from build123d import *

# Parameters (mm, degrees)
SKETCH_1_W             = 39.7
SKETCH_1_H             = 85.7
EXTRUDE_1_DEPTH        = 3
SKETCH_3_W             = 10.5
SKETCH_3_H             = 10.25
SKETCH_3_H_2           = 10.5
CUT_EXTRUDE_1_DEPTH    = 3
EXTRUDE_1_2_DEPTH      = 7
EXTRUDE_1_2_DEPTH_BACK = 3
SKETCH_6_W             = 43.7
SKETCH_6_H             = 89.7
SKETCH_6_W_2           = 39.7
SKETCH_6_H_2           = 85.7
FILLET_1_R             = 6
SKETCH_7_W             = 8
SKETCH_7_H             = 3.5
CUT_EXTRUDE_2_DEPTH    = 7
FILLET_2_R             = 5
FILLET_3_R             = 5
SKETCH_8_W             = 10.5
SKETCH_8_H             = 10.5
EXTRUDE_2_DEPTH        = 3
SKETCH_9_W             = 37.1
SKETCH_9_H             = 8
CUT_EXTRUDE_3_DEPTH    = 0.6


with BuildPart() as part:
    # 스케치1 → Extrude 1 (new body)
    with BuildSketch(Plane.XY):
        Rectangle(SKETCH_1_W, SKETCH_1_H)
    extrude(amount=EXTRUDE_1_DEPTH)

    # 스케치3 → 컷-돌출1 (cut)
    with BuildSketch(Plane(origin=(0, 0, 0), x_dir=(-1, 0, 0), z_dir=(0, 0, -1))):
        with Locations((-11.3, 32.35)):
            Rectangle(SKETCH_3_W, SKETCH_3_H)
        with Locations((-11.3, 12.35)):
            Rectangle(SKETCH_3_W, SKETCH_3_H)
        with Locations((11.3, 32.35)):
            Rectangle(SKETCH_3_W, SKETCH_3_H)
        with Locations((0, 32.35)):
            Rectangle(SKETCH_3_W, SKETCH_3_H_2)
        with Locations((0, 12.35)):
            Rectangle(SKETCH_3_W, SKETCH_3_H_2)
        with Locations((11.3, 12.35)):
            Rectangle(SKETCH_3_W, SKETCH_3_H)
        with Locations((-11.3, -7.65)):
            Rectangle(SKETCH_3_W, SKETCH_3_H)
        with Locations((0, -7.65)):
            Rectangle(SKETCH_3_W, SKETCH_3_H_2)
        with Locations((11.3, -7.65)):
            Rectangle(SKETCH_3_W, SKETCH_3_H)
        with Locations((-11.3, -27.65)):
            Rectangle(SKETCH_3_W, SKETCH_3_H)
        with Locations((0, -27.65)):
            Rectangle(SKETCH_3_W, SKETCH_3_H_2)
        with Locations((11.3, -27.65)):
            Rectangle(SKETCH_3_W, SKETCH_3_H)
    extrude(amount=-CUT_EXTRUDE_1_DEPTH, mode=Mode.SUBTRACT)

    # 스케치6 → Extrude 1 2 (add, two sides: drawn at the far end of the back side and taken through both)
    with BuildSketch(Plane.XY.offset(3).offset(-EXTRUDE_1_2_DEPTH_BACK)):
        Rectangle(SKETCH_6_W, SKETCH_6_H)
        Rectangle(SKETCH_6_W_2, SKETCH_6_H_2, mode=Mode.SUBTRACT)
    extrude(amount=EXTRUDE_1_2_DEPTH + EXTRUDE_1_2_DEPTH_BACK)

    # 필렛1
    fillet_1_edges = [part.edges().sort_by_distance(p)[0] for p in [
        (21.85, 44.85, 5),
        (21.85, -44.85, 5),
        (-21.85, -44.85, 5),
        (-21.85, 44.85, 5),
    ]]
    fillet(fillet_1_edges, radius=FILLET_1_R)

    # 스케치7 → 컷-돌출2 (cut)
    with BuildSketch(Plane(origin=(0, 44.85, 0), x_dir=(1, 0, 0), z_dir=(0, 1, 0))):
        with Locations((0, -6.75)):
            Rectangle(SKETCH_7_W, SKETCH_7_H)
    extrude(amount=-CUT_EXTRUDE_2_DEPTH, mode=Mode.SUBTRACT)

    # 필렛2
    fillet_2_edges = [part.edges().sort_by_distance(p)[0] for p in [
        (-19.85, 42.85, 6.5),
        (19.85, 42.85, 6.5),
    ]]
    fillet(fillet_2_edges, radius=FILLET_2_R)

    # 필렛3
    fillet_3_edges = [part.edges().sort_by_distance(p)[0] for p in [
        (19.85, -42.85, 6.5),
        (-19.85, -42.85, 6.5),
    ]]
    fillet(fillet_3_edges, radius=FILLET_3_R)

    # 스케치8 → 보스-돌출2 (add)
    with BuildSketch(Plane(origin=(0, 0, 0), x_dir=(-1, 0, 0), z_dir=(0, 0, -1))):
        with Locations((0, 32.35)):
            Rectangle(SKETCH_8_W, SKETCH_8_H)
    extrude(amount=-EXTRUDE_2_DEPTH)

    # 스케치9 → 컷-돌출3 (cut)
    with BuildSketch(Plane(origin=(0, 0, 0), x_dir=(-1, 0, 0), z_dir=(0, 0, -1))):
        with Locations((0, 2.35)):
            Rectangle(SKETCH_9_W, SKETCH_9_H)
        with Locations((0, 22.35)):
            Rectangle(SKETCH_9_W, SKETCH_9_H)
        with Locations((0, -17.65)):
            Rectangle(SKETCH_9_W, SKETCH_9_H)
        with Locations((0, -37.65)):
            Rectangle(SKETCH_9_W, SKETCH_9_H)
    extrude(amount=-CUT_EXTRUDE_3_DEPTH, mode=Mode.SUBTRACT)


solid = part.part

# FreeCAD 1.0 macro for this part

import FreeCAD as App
import Part
import Sketcher
Q = App.Units.Quantity


def edges_at(feature, points):
    """Names of the edges that pass closest to the given points."""
    edges = feature.Shape.Edges
    near = lambda p: min(range(len(edges)), key=lambda i: edges[i].distToShape(Part.Vertex(*p))[0])
    return sorted({f"Edge{near(p) + 1}" for p in points})


def add_polygon(sketch, points):
    """Adds a closed chain of lines whose ends are joined by coincident constraints."""
    first, n = sketch.GeometryCount, len(points)
    for a, b in zip(points, points[1:] + points[:1]):
        sketch.addGeometry(Part.LineSegment(App.Vector(*a, 0), App.Vector(*b, 0)), False)
    for i in range(n):
        sketch.addConstraint(Sketcher.Constraint("Coincident", first + i, 2, first + (i + 1) % n, 1))

doc = App.newDocument("Part")
body = doc.addObject("PartDesign::Body", "Body")

sketch1 = doc.addObject("Sketcher::SketchObject", "Sketch")
body.addObject(sketch1)
sketch1.AttachmentSupport = (doc.XY_Plane, [""])
sketch1.MapMode = "FlatFace"
add_polygon(sketch1, [(-20, 43), (-20, -43), (20, -43), (20, 43)])
sketch1.addConstraint(Sketcher.Constraint("Vertical", 0))
sketch1.addConstraint(Sketcher.Constraint("Horizontal", 1))
sketch1.addConstraint(Sketcher.Constraint("Vertical", 2))
sketch1.addConstraint(Sketcher.Constraint("Horizontal", 3))
sketch1.addConstraint(Sketcher.Constraint("Symmetric", 0, 2, 2, 2, -1, 1))
sketch1.addConstraint(Sketcher.Constraint("DistanceX", 1, 1, 1, 2, Q("39.7 mm")))
sketch1.addConstraint(Sketcher.Constraint("DistanceY", 0, 2, 0, 1, Q("85.7 mm")))
pad1 = doc.addObject("PartDesign::Pad", "Pad")
body.addObject(pad1)
pad1.Profile = sketch1
pad1.Length = 3

sketch2 = doc.addObject("Sketcher::SketchObject", "Sketch001")
body.addObject(sketch2)
sketch2.AttachmentSupport = (doc.XY_Plane, [""])
sketch2.MapMode = "FlatFace"
add_polygon(sketch2, [(17, 37), (17, 27), (6, 27), (6, 37)])
add_polygon(sketch2, [(17, 17), (17, 7), (6, 7), (6, 17)])
add_polygon(sketch2, [(-6, 37), (-6, 27), (-17, 27), (-17, 37)])
add_polygon(sketch2, [(5, 38), (5, 27), (-5, 27), (-5, 38)])
add_polygon(sketch2, [(5, 18), (5, 7), (-5, 7), (-5, 18)])
add_polygon(sketch2, [(-6, 17), (-6, 7), (-17, 7), (-17, 17)])
add_polygon(sketch2, [(17, -3), (17, -13), (6, -13), (6, -3)])
add_polygon(sketch2, [(5, -2), (5, -13), (-5, -13), (-5, -2)])
add_polygon(sketch2, [(-6, -3), (-6, -13), (-17, -13), (-17, -3)])
add_polygon(sketch2, [(17, -23), (17, -33), (6, -33), (6, -23)])
add_polygon(sketch2, [(5, -22), (5, -33), (-5, -33), (-5, -22)])
add_polygon(sketch2, [(-6, -23), (-6, -33), (-17, -33), (-17, -23)])
sketch2.addConstraint(Sketcher.Constraint("Vertical", 0))
sketch2.addConstraint(Sketcher.Constraint("Horizontal", 1))
sketch2.addConstraint(Sketcher.Constraint("Vertical", 2))
sketch2.addConstraint(Sketcher.Constraint("Horizontal", 3))
sketch2.addConstraint(Sketcher.Constraint("Vertical", 4))
sketch2.addConstraint(Sketcher.Constraint("Horizontal", 5))
sketch2.addConstraint(Sketcher.Constraint("Vertical", 6))
sketch2.addConstraint(Sketcher.Constraint("Horizontal", 7))
sketch2.addConstraint(Sketcher.Constraint("Vertical", 8))
sketch2.addConstraint(Sketcher.Constraint("Horizontal", 9))
sketch2.addConstraint(Sketcher.Constraint("Vertical", 10))
sketch2.addConstraint(Sketcher.Constraint("Horizontal", 11))
sketch2.addConstraint(Sketcher.Constraint("Vertical", 12))
sketch2.addConstraint(Sketcher.Constraint("Horizontal", 13))
sketch2.addConstraint(Sketcher.Constraint("Vertical", 14))
sketch2.addConstraint(Sketcher.Constraint("Horizontal", 15))
sketch2.addConstraint(Sketcher.Constraint("Vertical", 16))
sketch2.addConstraint(Sketcher.Constraint("Horizontal", 17))
sketch2.addConstraint(Sketcher.Constraint("Vertical", 18))
sketch2.addConstraint(Sketcher.Constraint("Horizontal", 19))
sketch2.addConstraint(Sketcher.Constraint("Vertical", 20))
sketch2.addConstraint(Sketcher.Constraint("Horizontal", 21))
sketch2.addConstraint(Sketcher.Constraint("Vertical", 22))
sketch2.addConstraint(Sketcher.Constraint("Horizontal", 23))
sketch2.addConstraint(Sketcher.Constraint("Vertical", 24))
sketch2.addConstraint(Sketcher.Constraint("Horizontal", 25))
sketch2.addConstraint(Sketcher.Constraint("Vertical", 26))
sketch2.addConstraint(Sketcher.Constraint("Horizontal", 27))
sketch2.addConstraint(Sketcher.Constraint("Vertical", 28))
sketch2.addConstraint(Sketcher.Constraint("Horizontal", 29))
sketch2.addConstraint(Sketcher.Constraint("Vertical", 30))
sketch2.addConstraint(Sketcher.Constraint("Horizontal", 31))
sketch2.addConstraint(Sketcher.Constraint("Vertical", 32))
sketch2.addConstraint(Sketcher.Constraint("Horizontal", 33))
sketch2.addConstraint(Sketcher.Constraint("Vertical", 34))
sketch2.addConstraint(Sketcher.Constraint("Horizontal", 35))
sketch2.addConstraint(Sketcher.Constraint("Vertical", 36))
sketch2.addConstraint(Sketcher.Constraint("Horizontal", 37))
sketch2.addConstraint(Sketcher.Constraint("Vertical", 38))
sketch2.addConstraint(Sketcher.Constraint("Horizontal", 39))
sketch2.addConstraint(Sketcher.Constraint("Vertical", 40))
sketch2.addConstraint(Sketcher.Constraint("Horizontal", 41))
sketch2.addConstraint(Sketcher.Constraint("Vertical", 42))
sketch2.addConstraint(Sketcher.Constraint("Horizontal", 43))
sketch2.addConstraint(Sketcher.Constraint("Vertical", 44))
sketch2.addConstraint(Sketcher.Constraint("Horizontal", 45))
sketch2.addConstraint(Sketcher.Constraint("Vertical", 46))
sketch2.addConstraint(Sketcher.Constraint("Horizontal", 47))
sketch2.addConstraint(Sketcher.Constraint("Symmetric", 1, 2, 8, 2, -2))
sketch2.addConstraint(Sketcher.Constraint("Symmetric", 3, 2, 10, 2, -2))
sketch2.addConstraint(Sketcher.Constraint("Symmetric", 5, 2, 20, 2, -2))
sketch2.addConstraint(Sketcher.Constraint("Symmetric", 7, 2, 22, 2, -2))
sketch2.addConstraint(Sketcher.Constraint("Symmetric", 25, 2, 32, 2, -2))
sketch2.addConstraint(Sketcher.Constraint("Symmetric", 27, 2, 34, 2, -2))
sketch2.addConstraint(Sketcher.Constraint("Symmetric", 37, 2, 44, 2, -2))
sketch2.addConstraint(Sketcher.Constraint("Symmetric", 39, 2, 46, 2, -2))
sketch2.addConstraint(Sketcher.Constraint("Vertical", 3, 2, 4, 2))
sketch2.addConstraint(Sketcher.Constraint("Vertical", 2, 2, 5, 2))
sketch2.addConstraint(Sketcher.Constraint("Vertical", 15, 2, 16, 2))
sketch2.addConstraint(Sketcher.Constraint("Vertical", 14, 2, 17, 2))
sketch2.addConstraint(Sketcher.Constraint("Vertical", 7, 2, 24, 2))
sketch2.addConstraint(Sketcher.Constraint("Vertical", 6, 2, 25, 2))
sketch2.addConstraint(Sketcher.Constraint("Vertical", 19, 2, 28, 2))
sketch2.addConstraint(Sketcher.Constraint("Vertical", 18, 2, 29, 2))
sketch2.addConstraint(Sketcher.Constraint("Vertical", 27, 2, 36, 2))
sketch2.addConstraint(Sketcher.Constraint("Vertical", 26, 2, 37, 2))
sketch2.addConstraint(Sketcher.Constraint("Vertical", 31, 2, 40, 2))
sketch2.addConstraint(Sketcher.Constraint("Vertical", 30, 2, 41, 2))
sketch2.addConstraint(Sketcher.Constraint("Equal", 11, 13))
sketch2.addConstraint(Sketcher.Constraint("Equal", 2, 4))
sketch2.addConstraint(Sketcher.Constraint("Equal", 47, 12))
sketch2.addConstraint(Sketcher.Constraint("Equal", 14, 16))
sketch2.addConstraint(Sketcher.Constraint("Equal", 22, 24))
sketch2.addConstraint(Sketcher.Constraint("Equal", 18, 28))
sketch2.addConstraint(Sketcher.Constraint("Equal", 34, 36))
sketch2.addConstraint(Sketcher.Constraint("Equal", 30, 40))
sketch2.addConstraint(Sketcher.Constraint("DistanceX", 1, 2, 1, 1, Q("10.5 mm")))
sketch2.addConstraint(Sketcher.Constraint("DistanceY", 4, 2, 0, 2, Q("20 mm")))
sketch2.addConstraint(Sketcher.Constraint("DistanceY", 16, 2, 12, 2, Q("20 mm")))
sketch2.addConstraint(Sketcher.Constraint("DistanceY", 24, 2, 4, 2, Q("20 mm")))
sketch2.addConstraint(Sketcher.Constraint("DistanceY", 28, 2, 16, 2, Q("20 mm")))
sketch2.addConstraint(Sketcher.Constraint("DistanceY", 36, 2, 24, 2, Q("20 mm")))
sketch2.addConstraint(Sketcher.Constraint("DistanceY", 40, 2, 28, 2, Q("20 mm")))
sketch2.addConstraint(Sketcher.Constraint("DistanceY", 0, 2, 0, 1, Q("10.25 mm")))
sketch2.addConstraint(Sketcher.Constraint("DistanceY", -1, 1, 12, 2, Q("27.1 mm")))
sketch2.addConstraint(Sketcher.Constraint("DistanceX", 8, 2, 1, 2, Q("12.1 mm")))
sketch2.addConstraint(Sketcher.Constraint("DistanceX", 12, 2, 1, 2, Q("0.8 mm")))
sketch2.addConstraint(Sketcher.Constraint("DistanceY", -1, 1, 0, 2, Q("27.225 mm")))
pocket1 = doc.addObject("PartDesign::Pocket", "Pocket")
body.addObject(pocket1)
pocket1.Profile = sketch2
pocket1.Length = 3
pocket1.Reversed = True

sketch3 = doc.addObject("Sketcher::SketchObject", "Sketch002")
body.addObject(sketch3)
sketch3.AttachmentSupport = (doc.XY_Plane, [""])
sketch3.MapMode = "FlatFace"
sketch3.AttachmentOffset = App.Placement(App.Vector(0, 0, 3), App.Rotation())
add_polygon(sketch3, [(-22, 45), (-22, -45), (22, -45), (22, 45)])
add_polygon(sketch3, [(20, -43), (-20, -43), (-20, 43), (20, 43)])
sketch3.addConstraint(Sketcher.Constraint("Vertical", 0))
sketch3.addConstraint(Sketcher.Constraint("Horizontal", 1))
sketch3.addConstraint(Sketcher.Constraint("Vertical", 2))
sketch3.addConstraint(Sketcher.Constraint("Horizontal", 3))
sketch3.addConstraint(Sketcher.Constraint("Horizontal", 4))
sketch3.addConstraint(Sketcher.Constraint("Vertical", 5))
sketch3.addConstraint(Sketcher.Constraint("Horizontal", 6))
sketch3.addConstraint(Sketcher.Constraint("Vertical", 7))
sketch3.addConstraint(Sketcher.Constraint("Symmetric", 0, 2, 2, 2, -1, 1))
sketch3.addConstraint(Sketcher.Constraint("Symmetric", 4, 2, 6, 2, -1, 1))
sketch3.addConstraint(Sketcher.Constraint("DistanceX", 1, 1, 1, 2, Q("43.7 mm")))
sketch3.addConstraint(Sketcher.Constraint("DistanceX", 4, 2, 4, 1, Q("39.7 mm")))
sketch3.addConstraint(Sketcher.Constraint("DistanceY", 0, 2, 0, 1, Q("89.7 mm")))
sketch3.addConstraint(Sketcher.Constraint("DistanceY", 5, 1, 5, 2, Q("85.7 mm")))
pad2 = doc.addObject("PartDesign::Pad", "Pad001")
body.addObject(pad2)
pad2.Profile = sketch3
pad2.Type = "TwoLengths"
pad2.Length = 7
pad2.Length2 = 3
doc.recompute()

fillet = doc.addObject("PartDesign::Fillet", "Fillet")
body.addObject(fillet)
fillet.Base = (pad2, edges_at(pad2, [
    (21.85, 44.85, 5),
    (21.85, -44.85, 5),
    (-21.85, -44.85, 5),
    (-21.85, 44.85, 5),
]))
fillet.Radius = 6

sketch4 = doc.addObject("Sketcher::SketchObject", "Sketch003")
body.addObject(sketch4)
sketch4.AttachmentSupport = (doc.XZ_Plane, [""])
sketch4.MapMode = "FlatFace"
sketch4.AttachmentOffset = App.Placement(App.Vector(0, 0, -44.85), App.Rotation())
add_polygon(sketch4, [(-4, 5), (-4, 8.5), (4, 8.5), (4, 5)])
sketch4.addConstraint(Sketcher.Constraint("Vertical", 0))
sketch4.addConstraint(Sketcher.Constraint("Horizontal", 1))
sketch4.addConstraint(Sketcher.Constraint("Vertical", 2))
sketch4.addConstraint(Sketcher.Constraint("Horizontal", 3))
sketch4.addConstraint(Sketcher.Constraint("DistanceX", 1, 1, 1, 2, Q("8 mm")))
sketch4.addConstraint(Sketcher.Constraint("DistanceY", 0, 1, 0, 2, Q("3.5 mm")))
sketch4.addConstraint(Sketcher.Constraint("DistanceX", 0, 2, -1, 1, Q("4 mm")))
sketch4.addConstraint(Sketcher.Constraint("DistanceY", -1, 1, 2, 2, Q("5 mm")))
pocket2 = doc.addObject("PartDesign::Pocket", "Pocket001")
body.addObject(pocket2)
pocket2.Profile = sketch4
pocket2.Length = 7
pocket2.Reversed = True
doc.recompute()

fillet2 = doc.addObject("PartDesign::Fillet", "Fillet001")
body.addObject(fillet2)
fillet2.Base = (pocket2, edges_at(pocket2, [(-19.85, 42.85, 6.5), (19.85, 42.85, 6.5)]))
fillet2.Radius = 5
doc.recompute()

fillet3 = doc.addObject("PartDesign::Fillet", "Fillet002")
body.addObject(fillet3)
fillet3.Base = (fillet2, edges_at(fillet2, [(19.85, -42.85, 6.5), (-19.85, -42.85, 6.5)]))
fillet3.Radius = 5

sketch5 = doc.addObject("Sketcher::SketchObject", "Sketch004")
body.addObject(sketch5)
sketch5.AttachmentSupport = (doc.XY_Plane, [""])
sketch5.MapMode = "FlatFace"
add_polygon(sketch5, [(5, 38), (5, 27), (-5, 27), (-5, 38)])
sketch5.addConstraint(Sketcher.Constraint("Vertical", 0))
sketch5.addConstraint(Sketcher.Constraint("Horizontal", 1))
sketch5.addConstraint(Sketcher.Constraint("Vertical", 2))
sketch5.addConstraint(Sketcher.Constraint("Horizontal", 3))
sketch5.addConstraint(Sketcher.Constraint("Equal", 3, 0))
sketch5.addConstraint(Sketcher.Constraint("DistanceX", 1, 2, 1, 1, Q("10.5 mm")))
sketch5.addConstraint(Sketcher.Constraint("DistanceY", -1, 1, 0, 2, Q("27.1 mm")))
sketch5.addConstraint(Sketcher.Constraint("DistanceX", -1, 1, 0, 2, Q("5.25 mm")))
pad3 = doc.addObject("PartDesign::Pad", "Pad002")
body.addObject(pad3)
pad3.Profile = sketch5
pad3.Length = 3

sketch6 = doc.addObject("Sketcher::SketchObject", "Sketch005")
body.addObject(sketch6)
sketch6.AttachmentSupport = (doc.XY_Plane, [""])
sketch6.MapMode = "FlatFace"
add_polygon(sketch6, [(19, 6), (19, -2), (-19, -2), (-19, 6)])
add_polygon(sketch6, [(19, 26), (19, 18), (-19, 18), (-19, 26)])
add_polygon(sketch6, [(19, -14), (19, -22), (-19, -22), (-19, -14)])
add_polygon(sketch6, [(19, -34), (19, -42), (-19, -42), (-19, -34)])
sketch6.addConstraint(Sketcher.Constraint("Vertical", 0))
sketch6.addConstraint(Sketcher.Constraint("Horizontal", 1))
sketch6.addConstraint(Sketcher.Constraint("Vertical", 2))
sketch6.addConstraint(Sketcher.Constraint("Horizontal", 3))
sketch6.addConstraint(Sketcher.Constraint("Vertical", 4))
sketch6.addConstraint(Sketcher.Constraint("Horizontal", 5))
sketch6.addConstraint(Sketcher.Constraint("Vertical", 6))
sketch6.addConstraint(Sketcher.Constraint("Horizontal", 7))
sketch6.addConstraint(Sketcher.Constraint("Vertical", 8))
sketch6.addConstraint(Sketcher.Constraint("Horizontal", 9))
sketch6.addConstraint(Sketcher.Constraint("Vertical", 10))
sketch6.addConstraint(Sketcher.Constraint("Horizontal", 11))
sketch6.addConstraint(Sketcher.Constraint("Vertical", 12))
sketch6.addConstraint(Sketcher.Constraint("Horizontal", 13))
sketch6.addConstraint(Sketcher.Constraint("Vertical", 14))
sketch6.addConstraint(Sketcher.Constraint("Horizontal", 15))
sketch6.addConstraint(Sketcher.Constraint("Vertical", 3, 2, 4, 2))
sketch6.addConstraint(Sketcher.Constraint("Vertical", 2, 2, 5, 2))
sketch6.addConstraint(Sketcher.Constraint("Vertical", 7, 2, 8, 2))
sketch6.addConstraint(Sketcher.Constraint("Vertical", 6, 2, 9, 2))
sketch6.addConstraint(Sketcher.Constraint("Vertical", 11, 2, 12, 2))
sketch6.addConstraint(Sketcher.Constraint("Vertical", 10, 2, 13, 2))
sketch6.addConstraint(Sketcher.Constraint("Equal", 2, 4))
sketch6.addConstraint(Sketcher.Constraint("Equal", 6, 8))
sketch6.addConstraint(Sketcher.Constraint("Equal", 10, 12))
sketch6.addConstraint(Sketcher.Constraint("DistanceY", 0, 2, 0, 1, Q("8 mm")))
sketch6.addConstraint(Sketcher.Constraint("DistanceX", 1, 2, 1, 1, Q("37.1 mm")))
sketch6.addConstraint(Sketcher.Constraint("DistanceY", 3, 2, 4, 2, Q("12 mm")))
sketch6.addConstraint(Sketcher.Constraint("DistanceY", 8, 2, 0, 2, Q("20 mm")))
sketch6.addConstraint(Sketcher.Constraint("DistanceY", 12, 2, 8, 2, Q("20 mm")))
sketch6.addConstraint(Sketcher.Constraint("DistanceX", -1, 1, 0, 2, Q("18.55 mm")))
sketch6.addConstraint(Sketcher.Constraint("DistanceY", 0, 2, -1, 1, Q("1.65 mm")))
pocket3 = doc.addObject("PartDesign::Pocket", "Pocket002")
body.addObject(pocket3)
pocket3.Profile = sketch6
pocket3.Length = 0.6
pocket3.Reversed = True

doc.recompute()
